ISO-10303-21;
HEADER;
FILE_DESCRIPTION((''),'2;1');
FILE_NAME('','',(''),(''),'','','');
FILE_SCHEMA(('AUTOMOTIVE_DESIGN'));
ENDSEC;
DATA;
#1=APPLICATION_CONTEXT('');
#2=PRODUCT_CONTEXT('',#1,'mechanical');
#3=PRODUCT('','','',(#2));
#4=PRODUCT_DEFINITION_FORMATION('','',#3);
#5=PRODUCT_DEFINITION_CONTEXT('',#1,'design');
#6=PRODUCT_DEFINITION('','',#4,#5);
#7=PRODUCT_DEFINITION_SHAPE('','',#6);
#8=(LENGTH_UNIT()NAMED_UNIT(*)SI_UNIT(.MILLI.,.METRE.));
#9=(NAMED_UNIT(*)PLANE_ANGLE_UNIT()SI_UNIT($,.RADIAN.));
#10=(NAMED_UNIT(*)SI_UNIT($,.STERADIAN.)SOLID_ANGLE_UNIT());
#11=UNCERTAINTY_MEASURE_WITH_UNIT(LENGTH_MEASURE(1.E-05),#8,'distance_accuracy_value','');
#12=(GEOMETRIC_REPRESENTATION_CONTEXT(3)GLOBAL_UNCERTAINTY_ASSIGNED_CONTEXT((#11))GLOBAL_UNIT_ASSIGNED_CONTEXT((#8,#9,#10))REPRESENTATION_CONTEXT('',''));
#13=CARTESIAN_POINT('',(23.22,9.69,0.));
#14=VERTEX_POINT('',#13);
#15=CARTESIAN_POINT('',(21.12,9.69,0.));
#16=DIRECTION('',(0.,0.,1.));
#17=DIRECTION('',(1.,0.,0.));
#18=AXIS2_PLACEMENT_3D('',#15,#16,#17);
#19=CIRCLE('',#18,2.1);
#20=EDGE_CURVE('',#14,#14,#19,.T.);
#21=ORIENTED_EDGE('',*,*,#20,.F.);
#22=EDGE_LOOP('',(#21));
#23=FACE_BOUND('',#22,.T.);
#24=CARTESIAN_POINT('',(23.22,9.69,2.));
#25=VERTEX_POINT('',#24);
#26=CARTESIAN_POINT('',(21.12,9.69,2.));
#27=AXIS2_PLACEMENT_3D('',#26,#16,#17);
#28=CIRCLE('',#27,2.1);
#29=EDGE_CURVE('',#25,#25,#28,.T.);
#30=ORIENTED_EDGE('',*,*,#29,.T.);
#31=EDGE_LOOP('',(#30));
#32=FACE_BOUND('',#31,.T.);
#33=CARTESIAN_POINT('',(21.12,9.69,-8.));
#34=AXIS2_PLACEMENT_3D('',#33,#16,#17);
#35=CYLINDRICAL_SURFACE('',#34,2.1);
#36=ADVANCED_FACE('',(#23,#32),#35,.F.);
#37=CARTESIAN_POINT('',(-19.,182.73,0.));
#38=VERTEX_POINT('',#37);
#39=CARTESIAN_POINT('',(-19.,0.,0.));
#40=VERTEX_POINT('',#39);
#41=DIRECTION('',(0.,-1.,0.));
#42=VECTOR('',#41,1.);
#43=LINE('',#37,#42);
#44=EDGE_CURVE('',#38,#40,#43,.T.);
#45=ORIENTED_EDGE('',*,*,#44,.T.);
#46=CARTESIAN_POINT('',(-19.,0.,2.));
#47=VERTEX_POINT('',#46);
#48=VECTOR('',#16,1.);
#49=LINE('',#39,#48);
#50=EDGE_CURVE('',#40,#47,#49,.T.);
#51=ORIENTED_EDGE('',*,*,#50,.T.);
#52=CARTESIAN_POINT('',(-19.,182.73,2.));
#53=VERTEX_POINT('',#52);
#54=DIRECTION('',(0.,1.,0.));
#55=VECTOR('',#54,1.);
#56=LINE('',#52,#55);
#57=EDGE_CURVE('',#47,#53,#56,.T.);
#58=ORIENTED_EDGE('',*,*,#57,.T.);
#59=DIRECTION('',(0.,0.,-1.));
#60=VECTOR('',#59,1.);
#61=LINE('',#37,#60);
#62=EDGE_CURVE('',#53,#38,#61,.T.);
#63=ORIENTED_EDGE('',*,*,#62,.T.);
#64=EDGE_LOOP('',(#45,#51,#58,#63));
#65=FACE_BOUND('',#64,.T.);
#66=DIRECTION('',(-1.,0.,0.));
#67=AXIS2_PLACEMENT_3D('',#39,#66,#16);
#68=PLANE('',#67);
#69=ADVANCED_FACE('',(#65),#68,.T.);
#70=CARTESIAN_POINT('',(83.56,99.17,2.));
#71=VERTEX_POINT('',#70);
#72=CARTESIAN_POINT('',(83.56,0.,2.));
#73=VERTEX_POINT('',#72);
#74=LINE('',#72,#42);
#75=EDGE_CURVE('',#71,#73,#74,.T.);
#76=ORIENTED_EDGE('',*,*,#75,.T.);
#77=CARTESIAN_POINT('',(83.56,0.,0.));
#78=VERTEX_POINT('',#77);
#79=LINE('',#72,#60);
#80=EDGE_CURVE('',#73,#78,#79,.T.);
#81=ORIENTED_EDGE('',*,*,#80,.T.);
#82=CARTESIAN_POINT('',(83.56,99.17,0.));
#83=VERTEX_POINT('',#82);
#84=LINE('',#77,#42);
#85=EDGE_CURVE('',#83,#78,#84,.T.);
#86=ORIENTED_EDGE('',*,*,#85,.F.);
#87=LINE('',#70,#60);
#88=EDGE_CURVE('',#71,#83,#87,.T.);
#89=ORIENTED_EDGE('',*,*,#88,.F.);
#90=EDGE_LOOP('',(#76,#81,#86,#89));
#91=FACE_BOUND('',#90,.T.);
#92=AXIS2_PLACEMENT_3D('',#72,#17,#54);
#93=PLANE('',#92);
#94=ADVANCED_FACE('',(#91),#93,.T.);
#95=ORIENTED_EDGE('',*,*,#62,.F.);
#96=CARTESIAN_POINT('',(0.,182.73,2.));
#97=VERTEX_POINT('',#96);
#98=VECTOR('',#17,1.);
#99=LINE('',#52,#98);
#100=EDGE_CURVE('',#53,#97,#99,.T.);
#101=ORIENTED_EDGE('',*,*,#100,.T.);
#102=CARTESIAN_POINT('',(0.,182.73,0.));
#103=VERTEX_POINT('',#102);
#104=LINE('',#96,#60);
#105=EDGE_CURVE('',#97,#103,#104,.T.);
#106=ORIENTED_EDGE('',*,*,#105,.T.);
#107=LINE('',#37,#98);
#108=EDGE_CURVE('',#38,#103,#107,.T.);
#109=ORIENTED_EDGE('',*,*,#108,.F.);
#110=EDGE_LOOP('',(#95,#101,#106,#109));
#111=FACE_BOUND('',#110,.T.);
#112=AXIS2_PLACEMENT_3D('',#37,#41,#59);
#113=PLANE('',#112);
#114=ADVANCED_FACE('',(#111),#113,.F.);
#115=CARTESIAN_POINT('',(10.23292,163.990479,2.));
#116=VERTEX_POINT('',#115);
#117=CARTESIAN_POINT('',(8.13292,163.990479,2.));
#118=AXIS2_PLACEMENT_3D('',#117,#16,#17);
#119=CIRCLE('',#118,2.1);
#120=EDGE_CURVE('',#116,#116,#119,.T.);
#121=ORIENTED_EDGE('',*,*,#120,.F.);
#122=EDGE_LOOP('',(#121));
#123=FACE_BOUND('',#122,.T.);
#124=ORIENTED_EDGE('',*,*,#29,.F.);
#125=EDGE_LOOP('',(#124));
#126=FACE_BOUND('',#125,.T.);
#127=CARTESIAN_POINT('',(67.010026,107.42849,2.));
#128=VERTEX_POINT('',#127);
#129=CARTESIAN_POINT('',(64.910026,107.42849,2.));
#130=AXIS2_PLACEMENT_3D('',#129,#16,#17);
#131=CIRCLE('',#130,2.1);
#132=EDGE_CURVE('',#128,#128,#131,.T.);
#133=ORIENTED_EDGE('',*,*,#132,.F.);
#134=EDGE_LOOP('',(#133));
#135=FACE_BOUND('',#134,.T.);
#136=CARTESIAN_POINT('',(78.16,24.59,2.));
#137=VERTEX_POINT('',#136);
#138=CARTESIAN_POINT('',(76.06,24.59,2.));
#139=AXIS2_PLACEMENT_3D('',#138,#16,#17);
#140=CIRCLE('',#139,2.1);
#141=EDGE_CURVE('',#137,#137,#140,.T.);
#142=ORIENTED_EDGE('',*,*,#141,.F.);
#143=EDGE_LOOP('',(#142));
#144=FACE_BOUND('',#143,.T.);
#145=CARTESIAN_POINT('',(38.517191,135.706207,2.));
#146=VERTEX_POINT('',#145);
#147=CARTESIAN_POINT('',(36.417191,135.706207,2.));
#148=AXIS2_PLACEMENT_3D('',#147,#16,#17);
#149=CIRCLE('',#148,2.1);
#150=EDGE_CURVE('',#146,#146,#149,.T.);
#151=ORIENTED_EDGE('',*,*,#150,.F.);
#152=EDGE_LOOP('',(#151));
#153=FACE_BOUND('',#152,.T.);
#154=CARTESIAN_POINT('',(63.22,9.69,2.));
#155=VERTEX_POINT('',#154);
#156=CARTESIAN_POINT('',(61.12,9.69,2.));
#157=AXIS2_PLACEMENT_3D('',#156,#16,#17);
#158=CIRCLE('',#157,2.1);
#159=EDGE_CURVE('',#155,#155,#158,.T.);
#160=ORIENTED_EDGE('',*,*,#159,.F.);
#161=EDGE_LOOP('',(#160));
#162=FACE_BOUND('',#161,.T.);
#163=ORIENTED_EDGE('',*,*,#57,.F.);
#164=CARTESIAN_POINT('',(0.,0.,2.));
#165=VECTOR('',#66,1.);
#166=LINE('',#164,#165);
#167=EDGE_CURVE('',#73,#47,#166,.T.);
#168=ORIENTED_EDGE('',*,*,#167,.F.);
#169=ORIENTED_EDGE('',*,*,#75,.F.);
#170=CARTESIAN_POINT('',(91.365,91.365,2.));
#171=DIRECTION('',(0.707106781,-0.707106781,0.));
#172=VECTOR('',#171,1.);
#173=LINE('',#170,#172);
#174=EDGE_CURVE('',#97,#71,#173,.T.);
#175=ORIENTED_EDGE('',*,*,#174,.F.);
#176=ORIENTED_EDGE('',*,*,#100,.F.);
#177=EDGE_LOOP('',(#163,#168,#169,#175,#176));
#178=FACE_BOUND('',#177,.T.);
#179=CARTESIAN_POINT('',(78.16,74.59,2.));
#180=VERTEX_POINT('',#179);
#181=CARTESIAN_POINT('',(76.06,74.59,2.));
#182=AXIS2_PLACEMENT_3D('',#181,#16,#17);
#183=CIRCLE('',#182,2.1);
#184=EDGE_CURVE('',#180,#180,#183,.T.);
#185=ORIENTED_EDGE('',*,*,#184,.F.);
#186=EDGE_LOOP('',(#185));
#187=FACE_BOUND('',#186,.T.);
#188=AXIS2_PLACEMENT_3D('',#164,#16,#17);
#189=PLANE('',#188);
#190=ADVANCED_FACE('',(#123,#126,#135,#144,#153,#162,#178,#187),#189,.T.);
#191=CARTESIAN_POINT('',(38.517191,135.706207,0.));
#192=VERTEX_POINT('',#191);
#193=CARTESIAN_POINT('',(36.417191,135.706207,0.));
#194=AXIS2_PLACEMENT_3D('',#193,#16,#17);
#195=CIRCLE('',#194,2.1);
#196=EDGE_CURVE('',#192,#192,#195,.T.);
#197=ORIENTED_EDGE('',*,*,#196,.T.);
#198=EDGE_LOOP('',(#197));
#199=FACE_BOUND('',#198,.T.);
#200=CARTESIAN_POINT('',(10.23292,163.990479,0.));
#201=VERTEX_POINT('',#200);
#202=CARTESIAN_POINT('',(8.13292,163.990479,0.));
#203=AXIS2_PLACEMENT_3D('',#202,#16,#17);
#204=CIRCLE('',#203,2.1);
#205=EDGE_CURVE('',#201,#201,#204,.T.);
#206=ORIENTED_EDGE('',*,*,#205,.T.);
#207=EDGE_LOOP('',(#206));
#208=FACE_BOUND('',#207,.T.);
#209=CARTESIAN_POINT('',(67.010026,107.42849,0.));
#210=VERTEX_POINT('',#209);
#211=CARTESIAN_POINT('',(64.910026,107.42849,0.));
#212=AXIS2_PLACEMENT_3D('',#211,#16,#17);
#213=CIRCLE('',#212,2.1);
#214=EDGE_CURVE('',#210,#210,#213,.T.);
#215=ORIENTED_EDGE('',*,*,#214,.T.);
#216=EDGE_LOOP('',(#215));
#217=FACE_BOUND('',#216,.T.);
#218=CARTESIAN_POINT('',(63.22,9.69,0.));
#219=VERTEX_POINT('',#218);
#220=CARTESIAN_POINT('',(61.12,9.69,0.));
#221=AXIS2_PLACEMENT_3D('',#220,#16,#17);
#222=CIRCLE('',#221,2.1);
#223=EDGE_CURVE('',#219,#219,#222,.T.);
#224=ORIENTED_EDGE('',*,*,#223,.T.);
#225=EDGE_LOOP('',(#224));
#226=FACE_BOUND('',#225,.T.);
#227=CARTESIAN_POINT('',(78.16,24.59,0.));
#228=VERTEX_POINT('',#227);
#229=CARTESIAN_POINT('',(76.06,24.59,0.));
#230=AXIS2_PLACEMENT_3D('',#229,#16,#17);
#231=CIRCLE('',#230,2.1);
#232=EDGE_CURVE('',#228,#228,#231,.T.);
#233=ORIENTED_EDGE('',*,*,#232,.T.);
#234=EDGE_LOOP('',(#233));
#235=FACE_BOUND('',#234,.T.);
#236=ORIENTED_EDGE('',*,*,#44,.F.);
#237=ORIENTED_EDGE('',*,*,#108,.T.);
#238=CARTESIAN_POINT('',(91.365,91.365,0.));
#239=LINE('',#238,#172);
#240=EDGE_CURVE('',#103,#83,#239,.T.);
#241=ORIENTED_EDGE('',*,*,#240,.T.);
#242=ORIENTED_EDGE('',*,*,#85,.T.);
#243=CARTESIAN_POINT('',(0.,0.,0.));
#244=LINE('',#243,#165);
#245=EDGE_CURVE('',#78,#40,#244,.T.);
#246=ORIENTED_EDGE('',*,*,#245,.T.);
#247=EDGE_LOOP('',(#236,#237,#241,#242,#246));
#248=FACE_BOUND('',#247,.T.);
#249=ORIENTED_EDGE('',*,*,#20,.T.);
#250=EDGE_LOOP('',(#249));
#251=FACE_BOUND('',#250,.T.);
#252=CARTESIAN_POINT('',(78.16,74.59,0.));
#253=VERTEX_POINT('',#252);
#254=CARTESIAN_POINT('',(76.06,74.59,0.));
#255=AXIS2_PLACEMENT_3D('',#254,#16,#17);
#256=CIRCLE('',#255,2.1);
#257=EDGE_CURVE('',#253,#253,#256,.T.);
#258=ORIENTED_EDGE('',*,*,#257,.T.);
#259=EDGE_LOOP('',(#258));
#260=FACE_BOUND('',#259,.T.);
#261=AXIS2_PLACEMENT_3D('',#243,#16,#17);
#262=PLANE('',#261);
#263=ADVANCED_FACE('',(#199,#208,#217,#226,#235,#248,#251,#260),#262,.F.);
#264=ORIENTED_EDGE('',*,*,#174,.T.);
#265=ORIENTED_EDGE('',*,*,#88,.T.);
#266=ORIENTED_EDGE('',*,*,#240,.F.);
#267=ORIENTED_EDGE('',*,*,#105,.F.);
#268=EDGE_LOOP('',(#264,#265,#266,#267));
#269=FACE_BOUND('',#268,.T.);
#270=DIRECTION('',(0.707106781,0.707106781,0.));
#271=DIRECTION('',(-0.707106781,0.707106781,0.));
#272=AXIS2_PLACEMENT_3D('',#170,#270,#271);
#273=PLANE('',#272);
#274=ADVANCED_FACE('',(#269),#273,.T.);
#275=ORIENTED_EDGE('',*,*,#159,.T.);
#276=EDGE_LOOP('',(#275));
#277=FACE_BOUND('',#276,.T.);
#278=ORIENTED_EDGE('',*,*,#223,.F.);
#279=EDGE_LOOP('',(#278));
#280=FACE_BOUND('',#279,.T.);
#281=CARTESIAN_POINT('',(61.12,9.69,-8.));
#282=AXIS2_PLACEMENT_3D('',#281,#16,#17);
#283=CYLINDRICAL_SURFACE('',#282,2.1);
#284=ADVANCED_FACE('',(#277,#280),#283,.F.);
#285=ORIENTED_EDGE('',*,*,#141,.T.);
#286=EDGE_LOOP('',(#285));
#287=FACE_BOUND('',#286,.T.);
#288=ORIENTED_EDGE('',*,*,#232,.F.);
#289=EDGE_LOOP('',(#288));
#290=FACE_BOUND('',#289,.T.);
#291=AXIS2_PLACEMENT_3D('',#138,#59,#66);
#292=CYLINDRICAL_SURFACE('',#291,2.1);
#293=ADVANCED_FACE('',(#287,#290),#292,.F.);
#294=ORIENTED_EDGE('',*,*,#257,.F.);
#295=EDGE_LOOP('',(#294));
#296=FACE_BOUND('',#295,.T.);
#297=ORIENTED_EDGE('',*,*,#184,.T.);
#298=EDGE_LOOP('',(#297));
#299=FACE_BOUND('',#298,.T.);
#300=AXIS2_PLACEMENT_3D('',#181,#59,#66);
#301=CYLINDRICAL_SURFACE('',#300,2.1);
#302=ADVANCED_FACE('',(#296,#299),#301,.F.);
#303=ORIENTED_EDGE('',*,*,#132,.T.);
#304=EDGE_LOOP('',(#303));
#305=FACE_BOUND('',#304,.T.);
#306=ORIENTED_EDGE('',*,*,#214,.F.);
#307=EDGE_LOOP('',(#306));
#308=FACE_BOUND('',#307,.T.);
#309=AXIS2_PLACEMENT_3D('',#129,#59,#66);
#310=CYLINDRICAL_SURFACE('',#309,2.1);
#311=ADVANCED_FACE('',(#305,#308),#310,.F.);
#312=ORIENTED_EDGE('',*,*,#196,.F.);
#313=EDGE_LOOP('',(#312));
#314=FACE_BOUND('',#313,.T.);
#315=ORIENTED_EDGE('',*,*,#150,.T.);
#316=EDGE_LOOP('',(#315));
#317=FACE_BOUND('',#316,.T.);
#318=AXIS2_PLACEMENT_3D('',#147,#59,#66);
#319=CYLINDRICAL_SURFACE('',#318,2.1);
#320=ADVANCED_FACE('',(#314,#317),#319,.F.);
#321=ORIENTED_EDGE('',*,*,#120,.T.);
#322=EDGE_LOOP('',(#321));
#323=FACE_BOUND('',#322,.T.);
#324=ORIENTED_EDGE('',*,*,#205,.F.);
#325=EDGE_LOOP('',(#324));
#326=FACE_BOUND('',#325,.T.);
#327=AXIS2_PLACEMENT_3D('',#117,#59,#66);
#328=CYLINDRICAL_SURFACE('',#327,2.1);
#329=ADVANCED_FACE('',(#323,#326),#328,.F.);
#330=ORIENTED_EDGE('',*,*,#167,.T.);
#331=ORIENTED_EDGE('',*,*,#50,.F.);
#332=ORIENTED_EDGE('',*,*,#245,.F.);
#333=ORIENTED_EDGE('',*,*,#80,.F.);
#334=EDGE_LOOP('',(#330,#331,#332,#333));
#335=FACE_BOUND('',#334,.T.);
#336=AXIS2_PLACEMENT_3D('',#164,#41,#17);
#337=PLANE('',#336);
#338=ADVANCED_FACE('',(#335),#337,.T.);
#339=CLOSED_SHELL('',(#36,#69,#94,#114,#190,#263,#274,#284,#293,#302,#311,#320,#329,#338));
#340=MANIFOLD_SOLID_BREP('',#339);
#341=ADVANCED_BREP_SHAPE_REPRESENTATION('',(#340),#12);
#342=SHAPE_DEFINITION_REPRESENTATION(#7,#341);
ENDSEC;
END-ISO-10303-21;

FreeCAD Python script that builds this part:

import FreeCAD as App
import Part
import Sketcher
Q = App.Units.Quantity

doc = App.newDocument("Part")
body = doc.addObject("PartDesign::Body", "Body")

sketch1 = doc.addObject("Sketcher::SketchObject", "Sketch")
body.addObject(sketch1)
sketch1.AttachmentSupport = (doc.XY_Plane, [""])
sketch1.MapMode = "FlatFace"
sketch1.addGeometry([
    Part.LineSegment(App.Vector(0, 182.73, 0), App.Vector(0, 0, 0)),
    Part.LineSegment(App.Vector(0, 0, 0), App.Vector(83.56, 0, 0)),
    Part.LineSegment(App.Vector(83.56, 0, 0), App.Vector(83.56, 99.17, 0)),
    Part.LineSegment(App.Vector(83.56, 99.17, 0), App.Vector(0, 182.73, 0)),
    Part.Circle(App.Vector(76.06, 24.59, 0), App.Vector(0, 0, 1), 2.1),
    Part.Circle(App.Vector(76.06, 74.59, 0), App.Vector(0, 0, 1), 2.1),
    Part.Circle(App.Vector(64.910026, 107.42849, 0), App.Vector(0, 0, 1), 2.1),
    Part.Circle(App.Vector(36.417191, 135.706207, 0), App.Vector(0, 0, 1), 2.1),
    Part.Circle(App.Vector(8.13292, 163.990479, 0), App.Vector(0, 0, 1), 2.1),
], False)
sketch1.addConstraint([
    Sketcher.Constraint("Coincident", 0, 2, 1, 1),
    Sketcher.Constraint("Coincident", 1, 2, 2, 1),
    Sketcher.Constraint("Coincident", 2, 2, 3, 1),
    Sketcher.Constraint("Coincident", 3, 2, 0, 1),
    Sketcher.Constraint("Vertical", 0),
    Sketcher.Constraint("Horizontal", 1),
    Sketcher.Constraint("Vertical", 2),
    Sketcher.Constraint("Coincident", 0, 2, -1, 1),
    Sketcher.Constraint("Equal", 4, 5),
    Sketcher.Constraint("Equal", 5, 6),
    Sketcher.Constraint("Equal", 6, 7),
    Sketcher.Constraint("Equal", 7, 8),
    Sketcher.Constraint("Vertical", 4, 3, 5, 3),
    Sketcher.Constraint("Diameter", 4, 4.2),
    Sketcher.Constraint("Angle", 3, Q("135 deg")),
    Sketcher.Constraint("DistanceY", 4, 3, 5, 3, 50.0),
    Sketcher.Constraint("DistanceX", 1, 1, 1, 2, 83.56),
    Sketcher.Constraint("DistanceY", 0, 2, 0, 1, 182.73),
    Sketcher.Constraint("DistanceX", 4, 3, 1, 2, 7.5),
    Sketcher.Constraint("DistanceY", -1, 1, 4, 3, 24.59),
    Sketcher.Constraint("DistanceY", -1, 1, 6, 3, 107.42849),
    Sketcher.Constraint("DistanceX", -1, 1, 7, 3, 36.417191),
    Sketcher.Constraint("DistanceX", -1, 1, 8, 3, 8.13292),
    Sketcher.Constraint("DistanceY", -1, 1, 8, 3, 163.990479),
    Sketcher.Constraint("DistanceY", 7, 3, 8, 3, 28.284271),
    Sketcher.Constraint("DistanceX", -1, 1, 6, 3, 64.910026),
])
pad1 = doc.addObject("PartDesign::Pad", "Pad")
body.addObject(pad1)
pad1.Profile = sketch1
pad1.Length = 2

sketch2 = doc.addObject("Sketcher::SketchObject", "Sketch001")
body.addObject(sketch2)
sketch2.AttachmentSupport = (doc.XY_Plane, [""])
sketch2.MapMode = "FlatFace"
sketch2.AttachmentOffset = App.Placement(App.Vector(0, 0, 2), App.Rotation())
sketch2.addGeometry([
    Part.Circle(App.Vector(21.12, 9.69, 0), App.Vector(0, 0, 1), 2.1),
    Part.Circle(App.Vector(61.12, 9.69, 0), App.Vector(0, 0, 1), 2.1),
], False)
sketch2.addConstraint([
    Sketcher.Constraint("Equal", 0, 1),
    Sketcher.Constraint("Horizontal", 0, 3, 1, 3),
    Sketcher.Constraint("Diameter", 0, 4.2),
    Sketcher.Constraint("DistanceX", 0, 3, 1, 3, 40.0),
    Sketcher.Constraint("DistanceX", -1, 1, 0, 3, 21.12),
    Sketcher.Constraint("DistanceY", -1, 1, 0, 3, 9.69),
])
pocket1 = doc.addObject("PartDesign::Pocket", "Pocket")
body.addObject(pocket1)
pocket1.Profile = sketch2
pocket1.Length = 10

sketch3 = doc.addObject("Sketcher::SketchObject", "Sketch002")
body.addObject(sketch3)
sketch3.AttachmentSupport = (doc.YZ_Plane, [""])
sketch3.MapMode = "FlatFace"
sketch3.addGeometry([
    Part.LineSegment(App.Vector(182.73, 0, 0), App.Vector(0, 0, 0)),
    Part.LineSegment(App.Vector(0, 0, 0), App.Vector(0, 2, 0)),
    Part.LineSegment(App.Vector(0, 2, 0), App.Vector(182.73, 2, 0)),
    Part.LineSegment(App.Vector(182.73, 2, 0), App.Vector(182.73, 0, 0)),
], False)
sketch3.addConstraint([
    Sketcher.Constraint("Coincident", 0, 2, 1, 1),
    Sketcher.Constraint("Coincident", 1, 2, 2, 1),
    Sketcher.Constraint("Coincident", 2, 2, 3, 1),
    Sketcher.Constraint("Coincident", 3, 2, 0, 1),
    Sketcher.Constraint("Horizontal", 0),
    Sketcher.Constraint("Vertical", 1),
    Sketcher.Constraint("Horizontal", 2),
    Sketcher.Constraint("Vertical", 3),
    Sketcher.Constraint("Coincident", 0, 2, -1, 1),
    Sketcher.Constraint("DistanceY", 1, 1, 1, 2, 2.0),
    Sketcher.Constraint("DistanceX", 0, 2, 0, 1, 182.73),
])
pad2 = doc.addObject("PartDesign::Pad", "Pad001")
body.addObject(pad2)
pad2.Profile = sketch3
pad2.Length = 19
pad2.Reversed = True

doc.recompute()
